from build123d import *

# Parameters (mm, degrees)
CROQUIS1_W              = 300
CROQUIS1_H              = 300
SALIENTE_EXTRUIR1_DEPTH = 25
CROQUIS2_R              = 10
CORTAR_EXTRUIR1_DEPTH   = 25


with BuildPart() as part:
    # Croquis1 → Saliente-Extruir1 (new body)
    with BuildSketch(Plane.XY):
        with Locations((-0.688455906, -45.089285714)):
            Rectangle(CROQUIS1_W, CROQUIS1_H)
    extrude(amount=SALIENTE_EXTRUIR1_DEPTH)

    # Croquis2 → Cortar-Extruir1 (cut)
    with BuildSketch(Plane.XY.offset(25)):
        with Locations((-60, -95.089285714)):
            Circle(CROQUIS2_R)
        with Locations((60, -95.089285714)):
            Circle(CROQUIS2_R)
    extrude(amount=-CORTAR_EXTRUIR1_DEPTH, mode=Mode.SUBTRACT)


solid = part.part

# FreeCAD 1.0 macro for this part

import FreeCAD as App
import Part
import Sketcher

V = App.Vector
Q = App.Units.Quantity

doc = App.newDocument("Part")
body = doc.addObject("PartDesign::Body", "Body")

# Sketch on XY plane
sketch1 = body.newObject("Sketcher::SketchObject", "Sketch")
sketch1.AttachmentSupport = (doc.getObject("XY_Plane"), [""])
sketch1.MapMode = "FlatFace"
sketch1.addGeometry([
    Part.LineSegment(V(-150.688456, 104.910714, 0), V(-150.688456, -195.089286, 0)),
    Part.LineSegment(V(-150.688456, -195.089286, 0), V(149.311544, -195.089286, 0)),
    Part.LineSegment(V(149.311544, -195.089286, 0), V(149.311544, 104.910714, 0)),
    Part.LineSegment(V(149.311544, 104.910714, 0), V(-150.688456, 104.910714, 0)),
], False)
sketch1.addConstraint([
    Sketcher.Constraint("Coincident", 0, 2, 1, 1),
    Sketcher.Constraint("Coincident", 1, 2, 2, 1),
    Sketcher.Constraint("Coincident", 2, 2, 3, 1),
    Sketcher.Constraint("Coincident", 3, 2, 0, 1),
    Sketcher.Constraint("Vertical", 0),
    Sketcher.Constraint("Horizontal", 1),
    Sketcher.Constraint("Vertical", 2),
    Sketcher.Constraint("Horizontal", 3),
    Sketcher.Constraint("Equal", 3, 0),
    Sketcher.Constraint("DistanceX", 1, 1, 1, 2, Q("300 mm")),
    Sketcher.Constraint("DistanceX", 0, 2, -1, 1, Q("150.688456 mm")),
    Sketcher.Constraint("DistanceY", 0, 2, -1, 1, Q("195.089286 mm")),
])
pad1 = body.newObject("PartDesign::Pad", "Pad")
pad1.Profile = sketch1
pad1.Length = 25

# Sketch on XY plane
sketch2 = body.newObject("Sketcher::SketchObject", "Sketch001")
sketch2.AttachmentSupport = (doc.getObject("XY_Plane"), [""])
sketch2.MapMode = "FlatFace"
sketch2.AttachmentOffset = App.Placement(V(0, 0, 25), App.Rotation())
sketch2.addGeometry([
    Part.Circle(V(-60, -95.089286, 0), V(0, 0, 1), 10),
    Part.Circle(V(60, -95.089286, 0), V(0, 0, 1), 10),
], False)
sketch2.addConstraint([
    Sketcher.Constraint("Equal", 0, 1),
    Sketcher.Constraint("Symmetric", 0, 3, 1, 3, -2),
    Sketcher.Constraint("Diameter", 0, Q("20 mm")),
    Sketcher.Constraint("DistanceX", 0, 3, -1, 1, Q("60 mm")),
    Sketcher.Constraint("DistanceY", 0, 3, -1, 1, Q("95.089286 mm")),
])
pocket1 = body.newObject("PartDesign::Pocket", "Pocket")
pocket1.Profile = sketch2
pocket1.Length = 25

doc.recompute()
